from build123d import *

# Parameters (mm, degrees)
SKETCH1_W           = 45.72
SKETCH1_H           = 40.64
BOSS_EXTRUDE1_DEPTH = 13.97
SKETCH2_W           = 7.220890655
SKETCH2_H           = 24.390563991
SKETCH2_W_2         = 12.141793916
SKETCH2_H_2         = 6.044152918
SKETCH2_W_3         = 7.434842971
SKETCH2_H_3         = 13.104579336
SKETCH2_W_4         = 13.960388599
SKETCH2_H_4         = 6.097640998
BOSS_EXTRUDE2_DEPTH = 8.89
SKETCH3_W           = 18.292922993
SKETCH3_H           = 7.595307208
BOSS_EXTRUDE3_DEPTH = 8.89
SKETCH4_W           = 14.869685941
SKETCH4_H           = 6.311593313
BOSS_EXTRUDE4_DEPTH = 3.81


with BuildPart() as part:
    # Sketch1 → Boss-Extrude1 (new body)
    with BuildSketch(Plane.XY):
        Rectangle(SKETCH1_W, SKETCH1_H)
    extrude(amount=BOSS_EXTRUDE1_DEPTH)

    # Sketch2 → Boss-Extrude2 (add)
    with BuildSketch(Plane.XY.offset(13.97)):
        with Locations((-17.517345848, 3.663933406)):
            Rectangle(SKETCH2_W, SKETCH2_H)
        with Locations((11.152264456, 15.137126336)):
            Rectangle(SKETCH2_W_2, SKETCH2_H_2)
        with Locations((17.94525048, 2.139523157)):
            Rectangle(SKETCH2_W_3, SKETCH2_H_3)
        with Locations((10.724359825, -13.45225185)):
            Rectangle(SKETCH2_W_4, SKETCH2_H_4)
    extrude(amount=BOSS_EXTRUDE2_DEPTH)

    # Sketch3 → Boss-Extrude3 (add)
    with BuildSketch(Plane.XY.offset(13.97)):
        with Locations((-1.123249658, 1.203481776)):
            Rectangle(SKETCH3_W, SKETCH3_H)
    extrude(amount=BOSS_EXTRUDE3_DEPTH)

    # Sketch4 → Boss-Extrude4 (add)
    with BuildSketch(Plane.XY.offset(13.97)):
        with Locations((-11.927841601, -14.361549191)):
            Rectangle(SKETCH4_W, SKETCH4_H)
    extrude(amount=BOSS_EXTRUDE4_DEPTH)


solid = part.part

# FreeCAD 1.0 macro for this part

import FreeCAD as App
import Part
import Sketcher

V = App.Vector
Q = App.Units.Quantity


def add_polygon(sketch, points):
    """Adds a closed chain of lines whose ends are joined by coincident constraints."""
    first, n = sketch.GeometryCount, len(points)
    for a, b in zip(points, points[1:] + points[:1]):
        sketch.addGeometry(Part.LineSegment(App.Vector(*a, 0), App.Vector(*b, 0)), False)
    for i in range(n):
        sketch.addConstraint(Sketcher.Constraint("Coincident", first + i, 2, first + (i + 1) % n, 1))

doc = App.newDocument("Part")
body = doc.addObject("PartDesign::Body", "Body")

sketch1 = body.newObject("Sketcher::SketchObject", "Sketch")
sketch1.AttachmentSupport = (doc.getObject("XY_Plane"), [""])
sketch1.MapMode = "FlatFace"
add_polygon(sketch1, [(-23, 20), (-23, -20), (23, -20), (23, 20)])
sketch1.addConstraint(Sketcher.Constraint("Vertical", 0))
sketch1.addConstraint(Sketcher.Constraint("Horizontal", 1))
sketch1.addConstraint(Sketcher.Constraint("Vertical", 2))
sketch1.addConstraint(Sketcher.Constraint("Horizontal", 3))
sketch1.addConstraint(Sketcher.Constraint("Symmetric", 0, 2, 2, 2, -1, 1))
sketch1.addConstraint(Sketcher.Constraint("DistanceX", 1, 1, 1, 2, Q("1.8 in")))
sketch1.addConstraint(Sketcher.Constraint("DistanceY", 0, 2, 0, 1, Q("1.6 in")))
pad1 = body.newObject("PartDesign::Pad", "Pad")
pad1.Profile = sketch1
pad1.Length = Q("0.55 in")

sketch2 = body.newObject("Sketcher::SketchObject", "Sketch001")
sketch2.AttachmentSupport = (doc.getObject("XY_Plane"), [""])
sketch2.MapMode = "FlatFace"
sketch2.AttachmentOffset = App.Placement(V(0, 0, 0.55 * 25.4), App.Rotation())
add_polygon(sketch2, [(-21, 16), (-21, -9), (-14, -9), (-14, 16)])
add_polygon(sketch2, [(5, 18), (5, 12), (17, 12), (17, 18)])
add_polygon(sketch2, [(14, 9), (14, -4), (22, -4), (22, 9)])
add_polygon(sketch2, [(4, -10), (4, -17), (18, -17), (18, -10)])
sketch2.addConstraint(Sketcher.Constraint("Vertical", 0))
sketch2.addConstraint(Sketcher.Constraint("Horizontal", 1))
sketch2.addConstraint(Sketcher.Constraint("Vertical", 2))
sketch2.addConstraint(Sketcher.Constraint("Horizontal", 3))
sketch2.addConstraint(Sketcher.Constraint("Vertical", 4))
sketch2.addConstraint(Sketcher.Constraint("Horizontal", 5))
sketch2.addConstraint(Sketcher.Constraint("Vertical", 6))
sketch2.addConstraint(Sketcher.Constraint("Horizontal", 7))
sketch2.addConstraint(Sketcher.Constraint("Vertical", 8))
sketch2.addConstraint(Sketcher.Constraint("Horizontal", 9))
sketch2.addConstraint(Sketcher.Constraint("Vertical", 10))
sketch2.addConstraint(Sketcher.Constraint("Horizontal", 11))
sketch2.addConstraint(Sketcher.Constraint("Vertical", 12))
sketch2.addConstraint(Sketcher.Constraint("Horizontal", 13))
sketch2.addConstraint(Sketcher.Constraint("Vertical", 14))
sketch2.addConstraint(Sketcher.Constraint("Horizontal", 15))
sketch2.addConstraint(Sketcher.Constraint("DistanceX", 1, 1, 1, 2, 7.220891))
sketch2.addConstraint(Sketcher.Constraint("DistanceX", 13, 1, 13, 2, 13.960389))
sketch2.addConstraint(Sketcher.Constraint("DistanceY", 8, 2, 8, 1, 13.104579))
sketch2.addConstraint(Sketcher.Constraint("DistanceY", 12, 2, 12, 1, 6.097641))
sketch2.addConstraint(Sketcher.Constraint("DistanceX", 1, 2, -1, 1, 13.906901))
sketch2.addConstraint(Sketcher.Constraint("DistanceY", 1, 2, 4, 2, 20.646398))
sketch2.addConstraint(Sketcher.Constraint("DistanceX", 5, 1, 5, 2, 12.141794))
sketch2.addConstraint(Sketcher.Constraint("DistanceX", 9, 1, 9, 2, 7.434843))
sketch2.addConstraint(Sketcher.Constraint("DistanceY", 0, 2, 0, 1, 24.390564))
sketch2.addConstraint(Sketcher.Constraint("DistanceY", 4, 2, 4, 1, 6.044153))
sketch2.addConstraint(Sketcher.Constraint("DistanceY", 0, 2, -1, 1, 8.531349))
sketch2.addConstraint(Sketcher.Constraint("DistanceX", -1, 1, 5, 2, 17.223161))
sketch2.addConstraint(Sketcher.Constraint("DistanceX", -1, 1, 8, 2, 14.227829))
sketch2.addConstraint(Sketcher.Constraint("DistanceY", 14, 2, -1, 1, 10.403431))
sketch2.addConstraint(Sketcher.Constraint("DistanceY", 8, 2, 6, 2, 22.571969))
sketch2.addConstraint(Sketcher.Constraint("DistanceX", -1, 1, 12, 2, 3.744166))
pad2 = body.newObject("PartDesign::Pad", "Pad001")
pad2.Profile = sketch2
pad2.Length = Q("0.35 in")

sketch3 = body.newObject("Sketcher::SketchObject", "Sketch002")
sketch3.AttachmentSupport = (doc.getObject("XY_Plane"), [""])
sketch3.MapMode = "FlatFace"
sketch3.AttachmentOffset = App.Placement(V(0, 0, 0.55 * 25.4), App.Rotation())
add_polygon(sketch3, [(-10, 5), (-10, -3), (8, -3), (8, 5)])
sketch3.addConstraint(Sketcher.Constraint("Vertical", 0))
sketch3.addConstraint(Sketcher.Constraint("Horizontal", 1))
sketch3.addConstraint(Sketcher.Constraint("Vertical", 2))
sketch3.addConstraint(Sketcher.Constraint("Horizontal", 3))
sketch3.addConstraint(Sketcher.Constraint("DistanceX", 1, 1, 1, 2, 18.292923))
sketch3.addConstraint(Sketcher.Constraint("DistanceY", 0, 2, 0, 1, 7.595307))
sketch3.addConstraint(Sketcher.Constraint("DistanceX", 0, 2, -1, 1, 10.269711))
sketch3.addConstraint(Sketcher.Constraint("DistanceY", 0, 2, -1, 1, 2.594172))
pad3 = body.newObject("PartDesign::Pad", "Pad002")
pad3.Profile = sketch3
pad3.Length = Q("0.35 in")

sketch4 = body.newObject("Sketcher::SketchObject", "Sketch003")
sketch4.AttachmentSupport = (doc.getObject("XY_Plane"), [""])
sketch4.MapMode = "FlatFace"
sketch4.AttachmentOffset = App.Placement(V(0, 0, 0.55 * 25.4), App.Rotation())
add_polygon(sketch4, [(-19, -11), (-19, -18), (-4, -18), (-4, -11)])
sketch4.addConstraint(Sketcher.Constraint("Vertical", 0))
sketch4.addConstraint(Sketcher.Constraint("Horizontal", 1))
sketch4.addConstraint(Sketcher.Constraint("Vertical", 2))
sketch4.addConstraint(Sketcher.Constraint("Horizontal", 3))
sketch4.addConstraint(Sketcher.Constraint("DistanceX", 1, 2, -1, 1, 4.492999))
sketch4.addConstraint(Sketcher.Constraint("DistanceX", 1, 1, 1, 2, 14.869686))
sketch4.addConstraint(Sketcher.Constraint("DistanceY", 0, 2, 0, 1, 6.311593))
sketch4.addConstraint(Sketcher.Constraint("DistanceY", 0, 2, -1, 1, 17.517346))
pad4 = body.newObject("PartDesign::Pad", "Pad003")
pad4.Profile = sketch4
pad4.Length = Q("0.15 in")

doc.recompute()
